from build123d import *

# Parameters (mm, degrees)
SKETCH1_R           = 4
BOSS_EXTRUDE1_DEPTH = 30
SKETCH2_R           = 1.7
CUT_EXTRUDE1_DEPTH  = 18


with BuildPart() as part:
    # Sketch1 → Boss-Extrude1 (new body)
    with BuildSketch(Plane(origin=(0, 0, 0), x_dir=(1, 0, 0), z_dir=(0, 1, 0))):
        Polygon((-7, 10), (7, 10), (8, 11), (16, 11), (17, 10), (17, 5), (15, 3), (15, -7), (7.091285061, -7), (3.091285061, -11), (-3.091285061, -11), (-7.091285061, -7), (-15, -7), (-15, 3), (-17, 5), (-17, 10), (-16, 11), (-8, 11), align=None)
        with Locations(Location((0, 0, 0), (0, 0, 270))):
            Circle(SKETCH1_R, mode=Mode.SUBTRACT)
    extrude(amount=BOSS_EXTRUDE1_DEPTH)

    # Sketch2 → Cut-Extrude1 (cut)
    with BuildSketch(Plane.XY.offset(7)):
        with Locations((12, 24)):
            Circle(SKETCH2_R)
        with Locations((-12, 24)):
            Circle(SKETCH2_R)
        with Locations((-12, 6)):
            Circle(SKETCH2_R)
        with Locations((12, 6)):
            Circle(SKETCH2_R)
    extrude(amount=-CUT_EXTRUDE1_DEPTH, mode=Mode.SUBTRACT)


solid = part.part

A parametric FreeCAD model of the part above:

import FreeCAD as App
import Part
import Sketcher
Q = App.Units.Quantity


def add_polygon(sketch, points):
    """Adds a closed chain of lines whose ends are joined by coincident constraints."""
    first, n = sketch.GeometryCount, len(points)
    for a, b in zip(points, points[1:] + points[:1]):
        sketch.addGeometry(Part.LineSegment(App.Vector(*a, 0), App.Vector(*b, 0)), False)
    for i in range(n):
        sketch.addConstraint(Sketcher.Constraint("Coincident", first + i, 2, first + (i + 1) % n, 1))

doc = App.newDocument("Part")
body = doc.addObject("PartDesign::Body", "Body")

# Sketch on XZ plane
sketch1 = body.newObject("Sketcher::SketchObject", "Sketch")
sketch1.AttachmentSupport = (doc.getObject("XZ_Plane"), [""])
sketch1.MapMode = "FlatFace"
add_polygon(sketch1, [(7, -10), (-7, -10), (-8, -11), (-16, -11), (-17, -10), (-17, -5), (-15, -3), (-15, 7), (-7.1, 7), (-3.1, 11), (3.1, 11), (7.1, 7), (15, 7), (15, -3), (17, -5), (17, -10), (16, -11), (8, -11)])  # lines 0-17
sketch1.addGeometry(Part.Circle(App.Vector(0, 0, 0), App.Vector(0, 0, 1), 4), False)  # 18
sketch1.addConstraint([
    Sketcher.Constraint("Horizontal", 0),
    Sketcher.Constraint("Horizontal", 2),
    Sketcher.Constraint("Vertical", 4),
    Sketcher.Constraint("Vertical", 6),
    Sketcher.Constraint("Horizontal", 7),
    Sketcher.Constraint("Horizontal", 9),
    Sketcher.Constraint("Horizontal", 11),
    Sketcher.Constraint("Vertical", 12),
    Sketcher.Constraint("Vertical", 14),
    Sketcher.Constraint("Horizontal", 16),
    Sketcher.Constraint("Coincident", 18, 3, -1, 1),
    Sketcher.Constraint("Symmetric", 7, 2, 10, 2, -2),
    Sketcher.Constraint("Symmetric", 5, 2, 12, 2, -2),
    Sketcher.Constraint("Symmetric", 4, 2, 13, 2, -2),
    Sketcher.Constraint("Symmetric", 2, 2, 15, 2, -2),
    Sketcher.Constraint("Perpendicular", 1, 3),
    Sketcher.Constraint("Perpendicular", 3, 5),
    Sketcher.Constraint("Parallel", 5, 8),
    Sketcher.Constraint("Perpendicular", 8, 10),
    Sketcher.Constraint("Parallel", 10, 13),
    Sketcher.Constraint("Perpendicular", 13, 15),
    Sketcher.Constraint("Perpendicular", 15, 17),
    Sketcher.Constraint("Horizontal", 0, 2, 3, 2),
    Sketcher.Constraint("Equal", 2, 16),
    Sketcher.Constraint("Diameter", 18, Q("8 mm")),
    Sketcher.Constraint("DistanceX", 0, 2, 0, 1, Q("14 mm")),
    Sketcher.Constraint("DistanceX", 2, 2, 2, 1, Q("8 mm")),
    Sketcher.Constraint("DistanceY", 4, 1, 4, 2, Q("5 mm")),
    Sketcher.Constraint("DistanceY", 6, 1, 6, 2, Q("10 mm")),
    Sketcher.Constraint("DistanceY", 0, 2, -1, 1, Q("10 mm")),
    Sketcher.Constraint("DistanceX", 1, 2, -1, 1, Q("8 mm")),
    Sketcher.Constraint("DistanceX", 5, 2, -1, 1, Q("15 mm")),
    Sketcher.Constraint("DistanceY", -1, 1, 8, 2, Q("11 mm")),
    Sketcher.Constraint("DistanceX", 9, 1, 9, 2, Q("6.18257 mm")),
])
pad1 = body.newObject("PartDesign::Pad", "Pad")
pad1.Profile = sketch1
pad1.Length = 30
pad1.Reversed = True

# Sketch on XY plane
sketch2 = body.newObject("Sketcher::SketchObject", "Sketch001")
sketch2.AttachmentSupport = (doc.getObject("XY_Plane"), [""])
sketch2.MapMode = "FlatFace"
sketch2.AttachmentOffset = App.Placement(App.Vector(0, 0, 7), App.Rotation())
sketch2.addGeometry([
    Part.Circle(App.Vector(12, 24, 0), App.Vector(0, 0, 1), 1.7),
    Part.Circle(App.Vector(-12, 24, 0), App.Vector(0, 0, 1), 1.7),
    Part.Circle(App.Vector(-12, 6, 0), App.Vector(0, 0, 1), 1.7),
    Part.Circle(App.Vector(12, 6, 0), App.Vector(0, 0, 1), 1.7),
], False)
sketch2.addConstraint([
    Sketcher.Constraint("Equal", 0, 1),
    Sketcher.Constraint("Equal", 1, 2),
    Sketcher.Constraint("Equal", 2, 3),
    Sketcher.Constraint("Symmetric", 0, 3, 1, 3, -2),
    Sketcher.Constraint("Symmetric", 2, 3, 3, 3, -2),
    Sketcher.Constraint("Vertical", 1, 3, 2, 3),
    Sketcher.Constraint("Diameter", 0, Q("3.4 mm")),
    Sketcher.Constraint("DistanceX", -1, 1, 0, 3, Q("12 mm")),
    Sketcher.Constraint("DistanceY", -1, 1, 0, 3, Q("24 mm")),
    Sketcher.Constraint("DistanceY", -1, 1, 2, 3, Q("6 mm")),
])
pocket1 = body.newObject("PartDesign::Pocket", "Pocket")
pocket1.Profile = sketch2
pocket1.Length = 18

doc.recompute()
